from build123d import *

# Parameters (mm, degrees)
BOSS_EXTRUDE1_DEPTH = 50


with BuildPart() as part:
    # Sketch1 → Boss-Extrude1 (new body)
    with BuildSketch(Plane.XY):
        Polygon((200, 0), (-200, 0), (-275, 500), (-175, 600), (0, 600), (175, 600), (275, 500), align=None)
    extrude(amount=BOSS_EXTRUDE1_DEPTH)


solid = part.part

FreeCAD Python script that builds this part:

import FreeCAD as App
import Part
import Sketcher

doc = App.newDocument("Part")
params = doc.addObject("Spreadsheet::Sheet", "Params")
for row, (alias, value) in enumerate([
    ("sketch1_width", "400 mm"),
    ("sketch1_width2", "350 mm"),
    ("pad1_length", "50 mm"),
], start=1):
    params.set(f"A{row}", alias)
    params.set(f"B{row}", "=" + value)
    params.setAlias(f"B{row}", alias)

body = doc.addObject("PartDesign::Body", "Body")

sketch1 = doc.addObject("Sketcher::SketchObject", "Sketch")
body.addObject(sketch1)
sketch1.AttachmentSupport = (doc.XY_Plane, [""])
sketch1.MapMode = "FlatFace"
sketch1.addGeometry([
    Part.LineSegment(App.Vector(-200, 0, 0), App.Vector(200, 0, 0)),
    Part.LineSegment(App.Vector(200, 0, 0), App.Vector(275, 500, 0)),
    Part.LineSegment(App.Vector(275, 500, 0), App.Vector(175, 600, 0)),
    Part.LineSegment(App.Vector(175, 600, 0), App.Vector(-175, 600, 0)),
    Part.LineSegment(App.Vector(-175, 600, 0), App.Vector(-275, 500, 0)),
    Part.LineSegment(App.Vector(-275, 500, 0), App.Vector(-200, 0, 0)),
], False)
sketch1.addConstraint([
    Sketcher.Constraint("Coincident", 0, 2, 1, 1),
    Sketcher.Constraint("Coincident", 1, 2, 2, 1),
    Sketcher.Constraint("Coincident", 2, 2, 3, 1),
    Sketcher.Constraint("Coincident", 3, 2, 4, 1),
    Sketcher.Constraint("Coincident", 4, 2, 5, 1),
    Sketcher.Constraint("Coincident", 5, 2, 0, 1),
    Sketcher.Constraint("Horizontal", 0),
    Sketcher.Constraint("Horizontal", 3),
    Sketcher.Constraint("Symmetric", 0, 2, 5, 2, -1, 1),
    Sketcher.Constraint("Symmetric", 1, 2, 4, 2, -2),
    Sketcher.Constraint("Perpendicular", 2, 4),
    Sketcher.Constraint("Equal", 2, 4),
    Sketcher.Constraint("DistanceX", 0, 1, 0, 2, 400.0),
    Sketcher.Constraint("DistanceX", 3, 2, 3, 1, 350.0),
    Sketcher.Constraint("DistanceX", -1, 1, 1, 2, 275.0),
    Sketcher.Constraint("DistanceY", -1, 1, 1, 2, 500.0),
])
sketch1.setExpression("Constraints[12]", "Params.sketch1_width")
sketch1.setExpression("Constraints[13]", "Params.sketch1_width2")
pad1 = doc.addObject("PartDesign::Pad", "Pad")
body.addObject(pad1)
pad1.Profile = sketch1
pad1.setExpression("Length", "Params.pad1_length")

doc.recompute()
